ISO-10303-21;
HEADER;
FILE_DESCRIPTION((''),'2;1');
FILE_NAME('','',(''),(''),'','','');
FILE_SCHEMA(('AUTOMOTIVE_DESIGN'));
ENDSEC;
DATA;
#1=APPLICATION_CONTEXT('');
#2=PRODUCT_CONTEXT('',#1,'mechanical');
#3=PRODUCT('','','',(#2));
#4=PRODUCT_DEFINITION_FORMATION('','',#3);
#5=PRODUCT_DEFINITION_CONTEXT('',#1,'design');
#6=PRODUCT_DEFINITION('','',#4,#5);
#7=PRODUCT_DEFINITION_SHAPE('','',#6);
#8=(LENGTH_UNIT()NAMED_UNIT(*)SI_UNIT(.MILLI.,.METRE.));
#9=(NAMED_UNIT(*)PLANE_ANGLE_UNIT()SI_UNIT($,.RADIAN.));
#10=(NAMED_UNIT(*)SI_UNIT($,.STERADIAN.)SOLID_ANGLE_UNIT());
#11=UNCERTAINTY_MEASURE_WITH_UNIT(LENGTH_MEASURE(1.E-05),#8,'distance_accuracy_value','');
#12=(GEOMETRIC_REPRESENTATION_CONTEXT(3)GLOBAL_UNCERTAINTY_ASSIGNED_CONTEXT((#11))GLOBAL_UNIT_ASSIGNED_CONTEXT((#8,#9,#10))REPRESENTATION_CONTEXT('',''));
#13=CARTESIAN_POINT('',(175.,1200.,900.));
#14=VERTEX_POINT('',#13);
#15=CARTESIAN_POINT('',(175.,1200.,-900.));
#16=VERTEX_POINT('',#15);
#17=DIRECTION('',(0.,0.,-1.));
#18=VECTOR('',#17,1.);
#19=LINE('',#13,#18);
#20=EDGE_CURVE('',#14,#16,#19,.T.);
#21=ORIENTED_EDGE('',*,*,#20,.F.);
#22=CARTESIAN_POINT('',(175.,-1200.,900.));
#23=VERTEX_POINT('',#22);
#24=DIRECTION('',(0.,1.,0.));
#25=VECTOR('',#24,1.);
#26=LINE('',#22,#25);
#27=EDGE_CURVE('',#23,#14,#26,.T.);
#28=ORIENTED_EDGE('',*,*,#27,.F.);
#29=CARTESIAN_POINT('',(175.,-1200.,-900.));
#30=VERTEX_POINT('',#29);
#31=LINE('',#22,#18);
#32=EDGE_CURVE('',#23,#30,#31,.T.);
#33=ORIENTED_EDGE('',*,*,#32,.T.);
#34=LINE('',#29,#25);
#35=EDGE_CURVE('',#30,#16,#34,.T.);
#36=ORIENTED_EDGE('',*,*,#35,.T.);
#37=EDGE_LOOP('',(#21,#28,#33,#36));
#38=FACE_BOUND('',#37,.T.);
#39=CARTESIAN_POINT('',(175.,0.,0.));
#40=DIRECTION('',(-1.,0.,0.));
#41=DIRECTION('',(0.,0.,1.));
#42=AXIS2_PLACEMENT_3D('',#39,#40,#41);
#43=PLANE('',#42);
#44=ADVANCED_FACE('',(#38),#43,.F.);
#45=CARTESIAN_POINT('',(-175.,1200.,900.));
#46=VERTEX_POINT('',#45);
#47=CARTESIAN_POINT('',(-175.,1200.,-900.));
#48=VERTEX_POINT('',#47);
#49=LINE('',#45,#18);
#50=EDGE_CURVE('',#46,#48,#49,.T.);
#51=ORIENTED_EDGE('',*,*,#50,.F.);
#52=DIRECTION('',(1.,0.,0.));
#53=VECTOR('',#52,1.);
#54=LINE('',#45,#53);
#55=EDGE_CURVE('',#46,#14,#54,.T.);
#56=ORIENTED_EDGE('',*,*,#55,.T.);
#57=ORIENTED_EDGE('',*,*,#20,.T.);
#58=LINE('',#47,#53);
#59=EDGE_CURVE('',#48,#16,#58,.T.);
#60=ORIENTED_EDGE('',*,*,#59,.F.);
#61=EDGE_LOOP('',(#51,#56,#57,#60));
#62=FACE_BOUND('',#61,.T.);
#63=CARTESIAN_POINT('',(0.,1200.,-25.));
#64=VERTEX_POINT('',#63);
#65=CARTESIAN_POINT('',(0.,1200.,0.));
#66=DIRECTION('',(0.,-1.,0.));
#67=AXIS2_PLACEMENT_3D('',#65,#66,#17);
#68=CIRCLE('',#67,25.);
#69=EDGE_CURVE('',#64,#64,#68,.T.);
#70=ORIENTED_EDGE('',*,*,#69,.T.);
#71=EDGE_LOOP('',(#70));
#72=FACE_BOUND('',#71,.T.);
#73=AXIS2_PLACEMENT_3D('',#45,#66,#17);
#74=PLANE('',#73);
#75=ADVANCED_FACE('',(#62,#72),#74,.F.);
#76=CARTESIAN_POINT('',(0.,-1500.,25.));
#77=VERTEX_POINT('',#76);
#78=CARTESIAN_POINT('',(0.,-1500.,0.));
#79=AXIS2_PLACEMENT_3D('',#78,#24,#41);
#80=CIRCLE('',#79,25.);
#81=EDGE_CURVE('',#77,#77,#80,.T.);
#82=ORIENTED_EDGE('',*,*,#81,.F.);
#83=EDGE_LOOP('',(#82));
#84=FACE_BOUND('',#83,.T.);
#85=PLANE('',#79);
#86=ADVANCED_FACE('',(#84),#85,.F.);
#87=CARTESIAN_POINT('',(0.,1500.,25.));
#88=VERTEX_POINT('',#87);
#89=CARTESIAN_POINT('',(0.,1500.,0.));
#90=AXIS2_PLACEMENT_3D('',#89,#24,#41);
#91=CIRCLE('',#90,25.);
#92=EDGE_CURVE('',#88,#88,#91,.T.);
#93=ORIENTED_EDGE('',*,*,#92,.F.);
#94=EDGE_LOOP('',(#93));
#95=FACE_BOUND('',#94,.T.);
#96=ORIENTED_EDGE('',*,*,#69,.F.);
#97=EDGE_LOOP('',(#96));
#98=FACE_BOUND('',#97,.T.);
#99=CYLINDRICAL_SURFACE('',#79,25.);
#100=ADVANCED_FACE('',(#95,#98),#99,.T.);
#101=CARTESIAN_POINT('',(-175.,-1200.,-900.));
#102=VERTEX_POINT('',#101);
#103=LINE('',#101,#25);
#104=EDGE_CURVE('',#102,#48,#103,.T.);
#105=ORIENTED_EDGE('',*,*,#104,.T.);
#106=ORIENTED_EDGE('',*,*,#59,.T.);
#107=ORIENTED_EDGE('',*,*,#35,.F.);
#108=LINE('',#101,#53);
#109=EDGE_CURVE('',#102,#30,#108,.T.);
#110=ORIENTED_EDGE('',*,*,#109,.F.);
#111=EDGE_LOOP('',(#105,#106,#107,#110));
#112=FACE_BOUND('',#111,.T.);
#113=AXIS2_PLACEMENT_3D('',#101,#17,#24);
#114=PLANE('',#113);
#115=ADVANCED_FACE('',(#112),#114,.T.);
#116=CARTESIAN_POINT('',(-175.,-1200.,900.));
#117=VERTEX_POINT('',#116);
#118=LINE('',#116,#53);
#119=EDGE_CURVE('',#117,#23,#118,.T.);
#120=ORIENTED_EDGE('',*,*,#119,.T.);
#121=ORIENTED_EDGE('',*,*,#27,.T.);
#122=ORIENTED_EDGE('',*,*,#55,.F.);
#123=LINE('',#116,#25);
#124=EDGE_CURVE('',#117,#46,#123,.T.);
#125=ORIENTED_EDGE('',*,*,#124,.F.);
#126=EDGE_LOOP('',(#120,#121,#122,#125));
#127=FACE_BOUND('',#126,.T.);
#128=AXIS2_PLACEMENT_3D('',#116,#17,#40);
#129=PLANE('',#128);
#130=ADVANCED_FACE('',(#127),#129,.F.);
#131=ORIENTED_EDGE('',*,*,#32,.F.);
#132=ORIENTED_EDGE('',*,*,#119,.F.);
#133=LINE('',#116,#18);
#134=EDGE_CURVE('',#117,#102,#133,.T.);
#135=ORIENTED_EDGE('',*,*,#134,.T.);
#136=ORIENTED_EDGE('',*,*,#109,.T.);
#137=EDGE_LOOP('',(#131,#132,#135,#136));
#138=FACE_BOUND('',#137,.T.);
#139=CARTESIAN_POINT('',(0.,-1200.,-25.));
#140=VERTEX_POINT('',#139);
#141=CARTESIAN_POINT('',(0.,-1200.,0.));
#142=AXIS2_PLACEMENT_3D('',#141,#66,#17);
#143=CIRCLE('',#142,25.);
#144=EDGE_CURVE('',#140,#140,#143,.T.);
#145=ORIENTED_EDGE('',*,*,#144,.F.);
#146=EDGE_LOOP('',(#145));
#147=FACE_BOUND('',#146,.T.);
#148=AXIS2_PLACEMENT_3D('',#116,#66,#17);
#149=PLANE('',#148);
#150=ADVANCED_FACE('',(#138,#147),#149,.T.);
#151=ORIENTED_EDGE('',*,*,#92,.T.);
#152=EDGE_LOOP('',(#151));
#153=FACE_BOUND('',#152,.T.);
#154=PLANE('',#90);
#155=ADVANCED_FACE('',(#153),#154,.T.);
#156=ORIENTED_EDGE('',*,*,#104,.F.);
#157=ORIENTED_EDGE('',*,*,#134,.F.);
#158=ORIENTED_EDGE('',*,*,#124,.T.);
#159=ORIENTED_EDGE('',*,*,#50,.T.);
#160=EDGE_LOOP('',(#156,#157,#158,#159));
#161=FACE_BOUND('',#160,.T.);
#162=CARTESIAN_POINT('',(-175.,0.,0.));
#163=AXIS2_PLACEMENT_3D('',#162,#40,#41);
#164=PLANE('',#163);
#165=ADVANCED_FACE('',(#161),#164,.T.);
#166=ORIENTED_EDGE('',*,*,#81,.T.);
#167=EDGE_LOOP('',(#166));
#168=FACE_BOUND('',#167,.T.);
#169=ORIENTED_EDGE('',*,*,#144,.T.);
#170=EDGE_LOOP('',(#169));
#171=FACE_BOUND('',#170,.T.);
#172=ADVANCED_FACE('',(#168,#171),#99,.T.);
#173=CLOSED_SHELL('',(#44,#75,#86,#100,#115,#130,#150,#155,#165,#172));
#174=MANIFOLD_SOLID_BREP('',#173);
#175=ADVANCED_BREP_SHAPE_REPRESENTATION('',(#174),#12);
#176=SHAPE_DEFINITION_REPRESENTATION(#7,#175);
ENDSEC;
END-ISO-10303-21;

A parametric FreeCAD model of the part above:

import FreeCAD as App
import Part
import Sketcher
from FreeCAD import Vector
Q = App.Units.Quantity


def add_polygon(sketch, points):
    """Adds a closed chain of lines whose ends are joined by coincident constraints."""
    first, n = sketch.GeometryCount, len(points)
    for a, b in zip(points, points[1:] + points[:1]):
        sketch.addGeometry(Part.LineSegment(App.Vector(*a, 0), App.Vector(*b, 0)), False)
    for i in range(n):
        sketch.addConstraint(Sketcher.Constraint("Coincident", first + i, 2, first + (i + 1) % n, 1))

doc = App.newDocument("Part")
params = doc.addObject("Spreadsheet::Sheet", "Params")
for row, (alias, value) in enumerate([
    ("sketch1_width", "2400 mm"),
    ("sketch1_height", "1800 mm"),
    ("pad1_length", "175 mm"),
    ("pad1_length2", "175 mm"),
    ("sketch2_diameter", "50 mm"),
    ("pad2_length", "1500 mm"),
    ("pad2_length2", "1500 mm"),
], start=1):
    params.set(f"A{row}", alias)
    params.set(f"B{row}", "=" + value)
    params.setAlias(f"B{row}", alias)

body = doc.addObject("PartDesign::Body", "Body")

# Sketch on YZ plane
sketch1 = body.newObject("Sketcher::SketchObject", "Sketch")
sketch1.AttachmentSupport = (doc.getObject("YZ_Plane"), [""])
sketch1.MapMode = "FlatFace"
add_polygon(sketch1, [(-1200, 900), (-1200, -900), (1200, -900), (1200, 900)])  # lines 0-3
sketch1.addConstraint([
    Sketcher.Constraint("Vertical", 0),
    Sketcher.Constraint("Horizontal", 1),
    Sketcher.Constraint("Vertical", 2),
    Sketcher.Constraint("Horizontal", 3),
    Sketcher.Constraint("Symmetric", 0, 2, 2, 2, -1, 1),
    Sketcher.Constraint("DistanceX", 1, 1, 1, 2, Q("2400 mm")),
    Sketcher.Constraint("DistanceY", 0, 2, 0, 1, Q("1800 mm")),
])
sketch1.setExpression("Constraints[9]", "Params.sketch1_width")
sketch1.setExpression("Constraints[10]", "Params.sketch1_height")
pad1 = body.newObject("PartDesign::Pad", "Pad")
pad1.Profile = sketch1
pad1.Type = "TwoLengths"
pad1.setExpression("Length", "Params.pad1_length")
pad1.setExpression("Length2", "Params.pad1_length2")

# Sketch on XZ plane
sketch2 = body.newObject("Sketcher::SketchObject", "Sketch001")
sketch2.AttachmentSupport = (doc.getObject("XZ_Plane"), [""])
sketch2.MapMode = "FlatFace"
sketch2.addGeometry(Part.Circle(Vector(0, 0, 0), Vector(0, 0, 1), 25), False)
sketch2.addConstraint([
    Sketcher.Constraint("Coincident", 0, 3, -1, 1),
    Sketcher.Constraint("Diameter", 0, Q("50 mm")),
])
sketch2.setExpression("Constraints[1]", "Params.sketch2_diameter")
pad2 = body.newObject("PartDesign::Pad", "Pad001")
pad2.Profile = sketch2
pad2.Type = "TwoLengths"
pad2.setExpression("Length", "Params.pad2_length")
pad2.setExpression("Length2", "Params.pad2_length2")
pad2.Reversed = True

doc.recompute()
